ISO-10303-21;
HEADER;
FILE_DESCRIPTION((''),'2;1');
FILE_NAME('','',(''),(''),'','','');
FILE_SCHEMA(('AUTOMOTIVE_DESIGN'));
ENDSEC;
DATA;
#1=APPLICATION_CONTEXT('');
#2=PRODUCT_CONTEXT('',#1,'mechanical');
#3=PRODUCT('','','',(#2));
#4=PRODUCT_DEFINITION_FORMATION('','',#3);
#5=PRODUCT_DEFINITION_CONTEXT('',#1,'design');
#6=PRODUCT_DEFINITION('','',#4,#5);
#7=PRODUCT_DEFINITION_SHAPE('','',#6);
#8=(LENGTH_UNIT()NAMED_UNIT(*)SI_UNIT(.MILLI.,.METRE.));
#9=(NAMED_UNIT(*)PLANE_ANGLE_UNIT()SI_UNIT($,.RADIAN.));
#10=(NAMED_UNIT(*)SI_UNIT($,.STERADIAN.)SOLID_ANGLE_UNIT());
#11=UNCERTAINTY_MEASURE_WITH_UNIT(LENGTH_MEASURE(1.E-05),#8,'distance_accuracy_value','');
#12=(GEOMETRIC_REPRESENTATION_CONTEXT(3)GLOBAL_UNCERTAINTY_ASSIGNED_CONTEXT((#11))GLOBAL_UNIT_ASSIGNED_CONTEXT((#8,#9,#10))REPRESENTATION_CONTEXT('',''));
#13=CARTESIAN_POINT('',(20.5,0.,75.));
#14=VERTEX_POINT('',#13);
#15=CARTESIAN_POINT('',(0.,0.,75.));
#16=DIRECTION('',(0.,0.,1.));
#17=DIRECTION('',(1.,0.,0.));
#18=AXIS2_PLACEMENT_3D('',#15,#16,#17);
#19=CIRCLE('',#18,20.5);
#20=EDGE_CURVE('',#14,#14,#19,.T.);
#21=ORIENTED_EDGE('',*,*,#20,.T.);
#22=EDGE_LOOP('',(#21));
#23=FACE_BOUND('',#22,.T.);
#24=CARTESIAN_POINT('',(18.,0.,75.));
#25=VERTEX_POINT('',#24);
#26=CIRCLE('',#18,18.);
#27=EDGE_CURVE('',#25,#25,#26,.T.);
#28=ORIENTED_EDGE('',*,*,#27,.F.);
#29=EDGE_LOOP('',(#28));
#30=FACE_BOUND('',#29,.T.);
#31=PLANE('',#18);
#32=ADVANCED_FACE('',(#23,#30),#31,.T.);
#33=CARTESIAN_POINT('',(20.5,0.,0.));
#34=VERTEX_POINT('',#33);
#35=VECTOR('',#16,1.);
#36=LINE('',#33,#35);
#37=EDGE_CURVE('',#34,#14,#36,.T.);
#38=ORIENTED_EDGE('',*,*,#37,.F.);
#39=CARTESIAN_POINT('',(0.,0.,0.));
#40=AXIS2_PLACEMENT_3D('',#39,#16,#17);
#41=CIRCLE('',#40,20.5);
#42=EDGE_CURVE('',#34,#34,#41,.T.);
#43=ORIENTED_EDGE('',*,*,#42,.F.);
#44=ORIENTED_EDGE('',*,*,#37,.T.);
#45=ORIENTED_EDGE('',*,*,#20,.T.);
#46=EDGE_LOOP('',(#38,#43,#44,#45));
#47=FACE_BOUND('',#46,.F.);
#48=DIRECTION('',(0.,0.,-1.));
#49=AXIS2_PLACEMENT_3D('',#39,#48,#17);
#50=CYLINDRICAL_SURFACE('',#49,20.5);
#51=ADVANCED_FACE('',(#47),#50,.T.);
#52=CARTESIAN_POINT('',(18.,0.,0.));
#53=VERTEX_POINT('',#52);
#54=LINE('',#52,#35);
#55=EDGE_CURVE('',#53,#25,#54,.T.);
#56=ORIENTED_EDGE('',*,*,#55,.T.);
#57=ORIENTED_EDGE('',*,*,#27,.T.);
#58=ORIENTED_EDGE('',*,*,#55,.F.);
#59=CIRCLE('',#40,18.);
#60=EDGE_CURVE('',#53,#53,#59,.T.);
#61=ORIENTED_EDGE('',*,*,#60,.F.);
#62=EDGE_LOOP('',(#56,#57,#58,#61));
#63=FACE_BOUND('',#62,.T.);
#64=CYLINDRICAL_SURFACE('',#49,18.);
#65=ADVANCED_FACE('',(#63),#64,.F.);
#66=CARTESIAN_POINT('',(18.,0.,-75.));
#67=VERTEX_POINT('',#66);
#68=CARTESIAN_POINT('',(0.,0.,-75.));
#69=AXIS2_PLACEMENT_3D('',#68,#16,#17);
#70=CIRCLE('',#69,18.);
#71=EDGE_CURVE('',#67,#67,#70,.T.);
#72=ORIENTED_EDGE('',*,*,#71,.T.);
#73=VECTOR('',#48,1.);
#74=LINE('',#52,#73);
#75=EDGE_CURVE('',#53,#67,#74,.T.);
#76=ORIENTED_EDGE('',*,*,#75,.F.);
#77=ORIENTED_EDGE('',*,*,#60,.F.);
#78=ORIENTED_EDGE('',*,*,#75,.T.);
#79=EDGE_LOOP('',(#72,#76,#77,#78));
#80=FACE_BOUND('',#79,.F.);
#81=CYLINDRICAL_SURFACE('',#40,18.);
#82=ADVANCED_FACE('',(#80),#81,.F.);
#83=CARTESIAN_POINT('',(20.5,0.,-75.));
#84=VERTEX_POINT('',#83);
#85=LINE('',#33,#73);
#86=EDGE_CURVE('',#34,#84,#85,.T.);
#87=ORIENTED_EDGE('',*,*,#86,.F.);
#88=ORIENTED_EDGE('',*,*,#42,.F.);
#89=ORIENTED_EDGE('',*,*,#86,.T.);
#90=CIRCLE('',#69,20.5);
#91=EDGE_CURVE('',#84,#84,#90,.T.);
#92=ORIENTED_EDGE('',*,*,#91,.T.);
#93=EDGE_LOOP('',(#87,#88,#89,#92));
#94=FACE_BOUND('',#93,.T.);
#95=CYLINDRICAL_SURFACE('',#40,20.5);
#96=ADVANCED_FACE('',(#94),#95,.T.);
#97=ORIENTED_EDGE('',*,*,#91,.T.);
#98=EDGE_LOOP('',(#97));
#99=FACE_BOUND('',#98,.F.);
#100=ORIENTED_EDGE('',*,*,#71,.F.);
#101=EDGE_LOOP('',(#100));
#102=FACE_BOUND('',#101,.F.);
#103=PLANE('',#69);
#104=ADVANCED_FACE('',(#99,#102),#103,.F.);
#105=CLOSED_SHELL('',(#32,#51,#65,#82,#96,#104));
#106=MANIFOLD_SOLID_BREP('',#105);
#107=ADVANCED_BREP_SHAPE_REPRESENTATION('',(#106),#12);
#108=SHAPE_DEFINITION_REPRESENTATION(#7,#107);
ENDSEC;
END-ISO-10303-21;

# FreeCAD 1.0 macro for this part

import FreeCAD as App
import Part
import Sketcher
Q = App.Units.Quantity

doc = App.newDocument("Part")
params = doc.addObject("Spreadsheet::Sheet", "Params")
for row, (alias, value) in enumerate([
    ("sketch1_diameter", "41 mm"),
    ("sketch1_diameter2", "36 mm"),
    ("pad1_length", "150 mm"),
], start=1):
    params.set(f"A{row}", alias)
    params.set(f"B{row}", "=" + value)
    params.setAlias(f"B{row}", alias)

body = doc.addObject("PartDesign::Body", "Body")

# Sketch on XY plane
sketch1 = body.newObject("Sketcher::SketchObject", "Sketch")
sketch1.AttachmentSupport = (doc.getObject("XY_Plane"), [""])
sketch1.MapMode = "FlatFace"
sketch1.addGeometry([
    Part.Circle(App.Vector(0, 0, 0), App.Vector(0, 0, 1), 20),
    Part.Circle(App.Vector(0, 0, 0), App.Vector(0, 0, 1), 18),
], False)
sketch1.addConstraint([
    Sketcher.Constraint("Coincident", 0, 3, -1, 1),
    Sketcher.Constraint("Coincident", 1, 3, -1, 1),
    Sketcher.Constraint("Diameter", 0, Q("41 mm")),
    Sketcher.Constraint("Diameter", 1, Q("36 mm")),
])
sketch1.setExpression("Constraints[2]", "Params.sketch1_diameter")
sketch1.setExpression("Constraints[3]", "Params.sketch1_diameter2")
pad1 = body.newObject("PartDesign::Pad", "Pad")
pad1.Profile = sketch1
pad1.setExpression("Length", "Params.pad1_length")
pad1.Midplane = True

doc.recompute()
